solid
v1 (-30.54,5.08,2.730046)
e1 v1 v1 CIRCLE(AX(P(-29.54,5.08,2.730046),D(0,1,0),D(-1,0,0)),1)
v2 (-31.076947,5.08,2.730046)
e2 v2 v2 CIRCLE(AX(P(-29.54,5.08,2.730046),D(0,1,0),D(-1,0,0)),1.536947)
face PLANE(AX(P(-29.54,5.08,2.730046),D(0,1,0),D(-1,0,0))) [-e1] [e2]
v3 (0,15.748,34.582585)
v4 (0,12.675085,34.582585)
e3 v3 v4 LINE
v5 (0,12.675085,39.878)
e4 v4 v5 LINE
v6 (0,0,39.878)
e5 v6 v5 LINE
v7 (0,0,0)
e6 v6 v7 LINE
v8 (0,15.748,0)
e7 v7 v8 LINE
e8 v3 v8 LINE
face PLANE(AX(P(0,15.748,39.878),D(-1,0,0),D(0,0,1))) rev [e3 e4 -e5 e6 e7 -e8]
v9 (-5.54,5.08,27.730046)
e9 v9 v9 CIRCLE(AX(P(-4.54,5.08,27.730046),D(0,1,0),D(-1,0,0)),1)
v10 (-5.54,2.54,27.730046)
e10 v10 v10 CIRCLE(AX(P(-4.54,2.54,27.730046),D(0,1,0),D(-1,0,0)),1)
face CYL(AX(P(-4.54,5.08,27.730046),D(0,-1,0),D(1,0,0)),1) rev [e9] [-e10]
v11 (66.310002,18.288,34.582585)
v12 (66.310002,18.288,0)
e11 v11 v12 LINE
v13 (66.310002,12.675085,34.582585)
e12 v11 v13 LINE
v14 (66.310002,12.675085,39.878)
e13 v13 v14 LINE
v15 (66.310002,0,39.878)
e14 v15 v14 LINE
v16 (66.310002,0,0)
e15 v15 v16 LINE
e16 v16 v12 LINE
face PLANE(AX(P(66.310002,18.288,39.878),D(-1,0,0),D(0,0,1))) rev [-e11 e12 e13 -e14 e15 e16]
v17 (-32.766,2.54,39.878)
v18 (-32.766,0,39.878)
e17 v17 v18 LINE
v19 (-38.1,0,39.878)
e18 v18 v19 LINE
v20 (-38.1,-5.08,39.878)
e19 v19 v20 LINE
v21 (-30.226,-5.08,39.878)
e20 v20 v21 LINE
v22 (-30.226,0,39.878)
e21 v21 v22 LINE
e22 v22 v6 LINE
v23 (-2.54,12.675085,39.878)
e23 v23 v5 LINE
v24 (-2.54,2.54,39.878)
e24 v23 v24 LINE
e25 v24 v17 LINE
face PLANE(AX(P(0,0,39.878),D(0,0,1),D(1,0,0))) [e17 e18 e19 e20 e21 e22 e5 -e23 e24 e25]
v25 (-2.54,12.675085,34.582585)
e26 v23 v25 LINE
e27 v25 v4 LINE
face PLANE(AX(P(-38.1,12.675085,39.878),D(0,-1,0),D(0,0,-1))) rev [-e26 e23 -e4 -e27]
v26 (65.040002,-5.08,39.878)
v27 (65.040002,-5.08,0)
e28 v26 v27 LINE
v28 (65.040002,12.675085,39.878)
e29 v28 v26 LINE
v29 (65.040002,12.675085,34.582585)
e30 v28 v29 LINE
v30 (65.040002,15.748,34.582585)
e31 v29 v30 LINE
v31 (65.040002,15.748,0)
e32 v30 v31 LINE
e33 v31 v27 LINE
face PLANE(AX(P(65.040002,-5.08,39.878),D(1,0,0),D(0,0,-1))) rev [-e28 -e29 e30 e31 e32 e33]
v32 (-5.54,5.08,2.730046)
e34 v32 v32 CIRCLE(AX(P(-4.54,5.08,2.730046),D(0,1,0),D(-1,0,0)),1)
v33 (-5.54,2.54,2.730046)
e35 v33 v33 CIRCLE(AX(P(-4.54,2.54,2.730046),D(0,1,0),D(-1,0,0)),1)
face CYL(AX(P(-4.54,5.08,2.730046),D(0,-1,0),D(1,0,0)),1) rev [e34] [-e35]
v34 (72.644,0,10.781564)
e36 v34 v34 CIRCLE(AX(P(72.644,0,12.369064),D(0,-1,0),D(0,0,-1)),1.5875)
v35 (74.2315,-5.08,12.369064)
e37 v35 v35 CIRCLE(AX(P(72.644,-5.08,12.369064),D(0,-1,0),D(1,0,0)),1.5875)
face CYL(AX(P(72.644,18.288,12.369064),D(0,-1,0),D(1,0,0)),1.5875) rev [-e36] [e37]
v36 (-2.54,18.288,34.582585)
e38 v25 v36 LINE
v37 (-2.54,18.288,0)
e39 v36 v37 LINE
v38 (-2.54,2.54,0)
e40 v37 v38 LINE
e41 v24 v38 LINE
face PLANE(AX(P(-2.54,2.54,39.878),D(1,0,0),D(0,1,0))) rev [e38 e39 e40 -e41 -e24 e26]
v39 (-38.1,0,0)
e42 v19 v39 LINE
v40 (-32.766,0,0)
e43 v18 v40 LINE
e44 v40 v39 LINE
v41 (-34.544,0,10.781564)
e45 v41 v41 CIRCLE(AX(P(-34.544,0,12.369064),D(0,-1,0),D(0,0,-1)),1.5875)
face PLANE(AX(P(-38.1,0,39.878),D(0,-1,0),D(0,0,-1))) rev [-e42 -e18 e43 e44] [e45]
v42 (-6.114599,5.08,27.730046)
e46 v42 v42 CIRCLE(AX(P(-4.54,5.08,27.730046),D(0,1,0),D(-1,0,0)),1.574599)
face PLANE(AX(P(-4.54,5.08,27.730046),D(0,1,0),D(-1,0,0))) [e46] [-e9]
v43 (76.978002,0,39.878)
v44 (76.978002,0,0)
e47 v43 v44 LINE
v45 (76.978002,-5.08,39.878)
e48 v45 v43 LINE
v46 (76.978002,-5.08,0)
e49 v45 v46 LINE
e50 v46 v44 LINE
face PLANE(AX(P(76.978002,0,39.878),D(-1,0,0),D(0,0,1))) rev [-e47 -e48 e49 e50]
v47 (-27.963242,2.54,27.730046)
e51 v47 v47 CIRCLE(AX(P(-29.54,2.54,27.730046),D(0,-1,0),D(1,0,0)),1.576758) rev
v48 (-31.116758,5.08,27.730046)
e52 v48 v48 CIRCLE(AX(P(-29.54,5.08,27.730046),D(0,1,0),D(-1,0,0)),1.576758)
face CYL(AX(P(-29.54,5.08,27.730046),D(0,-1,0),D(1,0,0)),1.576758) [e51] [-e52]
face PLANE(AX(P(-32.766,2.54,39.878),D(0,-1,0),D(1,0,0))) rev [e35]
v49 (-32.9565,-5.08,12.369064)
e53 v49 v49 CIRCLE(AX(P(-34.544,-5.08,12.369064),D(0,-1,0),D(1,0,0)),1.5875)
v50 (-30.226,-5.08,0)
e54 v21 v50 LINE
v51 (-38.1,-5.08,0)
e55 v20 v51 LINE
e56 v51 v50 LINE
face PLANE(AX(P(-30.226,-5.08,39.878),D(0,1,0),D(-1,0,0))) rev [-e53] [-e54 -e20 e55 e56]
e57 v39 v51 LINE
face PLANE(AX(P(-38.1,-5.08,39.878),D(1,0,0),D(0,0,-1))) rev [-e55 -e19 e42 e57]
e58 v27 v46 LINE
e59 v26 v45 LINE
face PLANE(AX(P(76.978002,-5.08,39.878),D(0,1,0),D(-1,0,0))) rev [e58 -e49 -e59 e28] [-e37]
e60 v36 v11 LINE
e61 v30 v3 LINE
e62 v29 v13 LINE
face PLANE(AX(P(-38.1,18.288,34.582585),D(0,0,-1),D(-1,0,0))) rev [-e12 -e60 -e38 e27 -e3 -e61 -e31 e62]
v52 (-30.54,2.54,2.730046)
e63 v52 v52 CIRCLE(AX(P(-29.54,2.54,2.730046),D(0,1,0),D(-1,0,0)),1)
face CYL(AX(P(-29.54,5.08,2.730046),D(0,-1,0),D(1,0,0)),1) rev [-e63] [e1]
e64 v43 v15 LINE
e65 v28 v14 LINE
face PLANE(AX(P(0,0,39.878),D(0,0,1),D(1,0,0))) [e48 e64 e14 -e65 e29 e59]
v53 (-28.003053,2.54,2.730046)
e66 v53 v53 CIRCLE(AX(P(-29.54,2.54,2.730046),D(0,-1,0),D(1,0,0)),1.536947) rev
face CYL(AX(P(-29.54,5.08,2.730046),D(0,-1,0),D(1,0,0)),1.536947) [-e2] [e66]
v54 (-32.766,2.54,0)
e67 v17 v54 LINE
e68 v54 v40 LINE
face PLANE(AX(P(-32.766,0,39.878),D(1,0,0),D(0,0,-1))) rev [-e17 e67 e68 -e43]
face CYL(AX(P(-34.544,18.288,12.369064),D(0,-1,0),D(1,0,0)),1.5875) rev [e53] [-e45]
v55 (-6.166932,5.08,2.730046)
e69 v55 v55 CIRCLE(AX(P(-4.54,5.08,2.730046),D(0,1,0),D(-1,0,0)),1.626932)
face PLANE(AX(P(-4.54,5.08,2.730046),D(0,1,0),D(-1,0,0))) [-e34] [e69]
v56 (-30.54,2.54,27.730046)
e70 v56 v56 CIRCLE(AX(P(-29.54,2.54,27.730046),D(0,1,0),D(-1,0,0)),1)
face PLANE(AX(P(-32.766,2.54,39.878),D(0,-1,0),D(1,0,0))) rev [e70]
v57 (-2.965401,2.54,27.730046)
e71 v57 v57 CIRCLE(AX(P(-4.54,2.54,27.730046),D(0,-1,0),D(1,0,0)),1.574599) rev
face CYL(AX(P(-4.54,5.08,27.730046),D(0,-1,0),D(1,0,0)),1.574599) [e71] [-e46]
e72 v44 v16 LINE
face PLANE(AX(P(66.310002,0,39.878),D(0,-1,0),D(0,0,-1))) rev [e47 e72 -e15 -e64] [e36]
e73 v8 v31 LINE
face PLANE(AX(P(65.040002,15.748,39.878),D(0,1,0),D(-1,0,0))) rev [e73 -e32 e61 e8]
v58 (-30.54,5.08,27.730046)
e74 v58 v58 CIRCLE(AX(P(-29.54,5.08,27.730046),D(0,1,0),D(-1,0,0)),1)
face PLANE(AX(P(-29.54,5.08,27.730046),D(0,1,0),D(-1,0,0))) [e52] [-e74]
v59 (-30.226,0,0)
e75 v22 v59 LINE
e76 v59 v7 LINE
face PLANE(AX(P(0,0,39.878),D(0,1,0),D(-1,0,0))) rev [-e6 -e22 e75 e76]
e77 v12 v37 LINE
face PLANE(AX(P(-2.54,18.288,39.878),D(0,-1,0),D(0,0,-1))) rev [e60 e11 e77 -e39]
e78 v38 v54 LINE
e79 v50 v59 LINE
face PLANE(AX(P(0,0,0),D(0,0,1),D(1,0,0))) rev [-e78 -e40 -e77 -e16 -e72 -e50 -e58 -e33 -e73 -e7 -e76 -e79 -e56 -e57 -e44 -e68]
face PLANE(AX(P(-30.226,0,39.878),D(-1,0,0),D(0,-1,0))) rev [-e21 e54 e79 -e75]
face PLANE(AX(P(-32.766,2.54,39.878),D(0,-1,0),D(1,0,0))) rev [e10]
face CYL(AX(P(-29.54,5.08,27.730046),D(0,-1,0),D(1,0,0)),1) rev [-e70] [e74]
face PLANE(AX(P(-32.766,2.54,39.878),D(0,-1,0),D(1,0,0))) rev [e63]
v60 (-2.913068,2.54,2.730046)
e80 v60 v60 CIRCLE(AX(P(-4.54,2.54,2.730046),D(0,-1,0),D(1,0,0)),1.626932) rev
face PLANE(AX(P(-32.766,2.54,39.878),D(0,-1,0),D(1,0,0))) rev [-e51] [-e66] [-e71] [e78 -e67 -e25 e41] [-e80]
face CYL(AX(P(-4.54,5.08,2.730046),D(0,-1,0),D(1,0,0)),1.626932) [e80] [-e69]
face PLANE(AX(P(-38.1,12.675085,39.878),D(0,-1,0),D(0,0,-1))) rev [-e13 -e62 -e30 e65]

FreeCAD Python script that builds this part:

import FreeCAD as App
import Part
import Sketcher

V = App.Vector
Q = App.Units.Quantity


def add_polygon(sketch, points):
    """Adds a closed chain of lines whose ends are joined by coincident constraints."""
    first, n = sketch.GeometryCount, len(points)
    for a, b in zip(points, points[1:] + points[:1]):
        sketch.addGeometry(Part.LineSegment(App.Vector(*a, 0), App.Vector(*b, 0)), False)
    for i in range(n):
        sketch.addConstraint(Sketcher.Constraint("Coincident", first + i, 2, first + (i + 1) % n, 1))

doc = App.newDocument("Part")
body = doc.addObject("PartDesign::Body", "Body")

# Sketch on XY plane
sketch1 = body.newObject("Sketcher::SketchObject", "Sketch")
sketch1.AttachmentSupport = (doc.getObject("XY_Plane"), [""])
sketch1.MapMode = "FlatFace"
add_polygon(sketch1, [(-30.2, -5.1), (-30.2, 0), (0, 0), (0, 15.7), (65, 15.7), (65, -5.1), (77, -5.1), (77, 0), (66.3, 0), (66.3, 18.3), (-2.5, 18.3), (-2.5, 2.5), (-32.8, 2.5), (-32.8, 0), (-38.1, 0), (-38.1, -5.1)])  # lines 0-15
sketch1.addConstraint([
    Sketcher.Constraint("Vertical", 0),
    Sketcher.Constraint("Horizontal", 1),
    Sketcher.Constraint("Vertical", 2),
    Sketcher.Constraint("Horizontal", 3),
    Sketcher.Constraint("Vertical", 4),
    Sketcher.Constraint("Horizontal", 5),
    Sketcher.Constraint("Vertical", 6),
    Sketcher.Constraint("Horizontal", 7),
    Sketcher.Constraint("Vertical", 8),
    Sketcher.Constraint("Horizontal", 9),
    Sketcher.Constraint("Vertical", 10),
    Sketcher.Constraint("Horizontal", 11),
    Sketcher.Constraint("Vertical", 12),
    Sketcher.Constraint("Horizontal", 13),
    Sketcher.Constraint("Vertical", 14),
    Sketcher.Constraint("Horizontal", 15),
    Sketcher.Constraint("Coincident", 1, 2, -1, 1),
    Sketcher.Constraint("PointOnObject", 6, 2, -1),
    Sketcher.Constraint("PointOnObject", 12, 2, -1),
    Sketcher.Constraint("Horizontal", 5, 2, 14, 2),
    Sketcher.Constraint("Equal", 1, 11),
    Sketcher.Constraint("Equal", 2, 10),
    Sketcher.Constraint("DistanceY", 0, 1, 0, 2, Q("0.2 in")),
    Sketcher.Constraint("DistanceY", 12, 2, 12, 1, Q("0.1 in")),
    Sketcher.Constraint("DistanceX", 1, 1, 1, 2, Q("1.19 in")),
    Sketcher.Constraint("DistanceX", 5, 1, 5, 2, Q("0.47 in")),
    Sketcher.Constraint("DistanceX", 7, 2, 7, 1, Q("0.42 in")),
    Sketcher.Constraint("DistanceX", 13, 2, 13, 1, Q("0.21 in")),
    Sketcher.Constraint("DistanceX", 15, 1, 15, 2, Q("0.31 in")),
    Sketcher.Constraint("DistanceY", 2, 1, 2, 2, Q("0.62 in")),
    Sketcher.Constraint("DistanceX", 3, 1, 3, 2, Q("65.040002 mm")),
])
pad1 = body.newObject("PartDesign::Pad", "Pad")
pad1.Profile = sketch1
pad1.Length = Q("1.57 in")

# Sketch on XZ plane
sketch2 = body.newObject("Sketcher::SketchObject", "Sketch001")
sketch2.AttachmentSupport = (doc.getObject("XZ_Plane"), [""])
sketch2.MapMode = "FlatFace"
sketch2.AttachmentOffset = App.Placement(V(0, 0, 0.2 * 25.4), App.Rotation())
sketch2.addGeometry([
    Part.Circle(V(-34.5, 12.4, 0), V(0, 0, 1), 1.6),
    Part.Circle(V(72.6, 12.4, 0), V(0, 0, 1), 1.6),
], False)
sketch2.addConstraint([
    Sketcher.Constraint("Equal", 0, 1),
    Sketcher.Constraint("Horizontal", 0, 3, 1, 3),
    Sketcher.Constraint("Diameter", 0, Q("0.125 in")),
    Sketcher.Constraint("DistanceX", 0, 3, -1, 1, Q("1.36 in")),
    Sketcher.Constraint("DistanceX", -1, 1, 1, 3, Q("2.86 in")),
    Sketcher.Constraint("DistanceY", -1, 1, 0, 3, Q("12.369064 mm")),
])
pocket1 = body.newObject("PartDesign::Pocket", "Pocket")
pocket1.Profile = sketch2
pocket1.Type = "ThroughAll"

# Sketch on YZ plane
sketch3 = body.newObject("Sketcher::SketchObject", "Sketch002")
sketch3.AttachmentSupport = (doc.getObject("YZ_Plane"), [""])
sketch3.MapMode = "FlatFace"
sketch3.AttachmentOffset = App.Placement(V(0, 0, 76.978002), App.Rotation())
add_polygon(sketch3, [(18, 40), (13, 40), (13, 35), (18, 35)])  # lines 0-3
sketch3.addConstraint([
    Sketcher.Constraint("Horizontal", 0),
    Sketcher.Constraint("Vertical", 1),
    Sketcher.Constraint("Horizontal", 2),
    Sketcher.Constraint("Vertical", 3),
    Sketcher.Constraint("DistanceY", -1, 1, 0, 2, Q("1.57 in")),
    Sketcher.Constraint("DistanceX", -1, 1, 2, 2, Q("0.72 in")),
    Sketcher.Constraint("DistanceX", 0, 2, 0, 1, Q("5.612915 mm")),
    Sketcher.Constraint("DistanceY", 1, 2, 1, 1, Q("5.295415 mm")),
])
pocket2 = body.newObject("PartDesign::Pocket", "Pocket001")
pocket2.Profile = sketch3
pocket2.Type = "ThroughAll"

# Sketch on XZ plane
sketch4 = body.newObject("Sketcher::SketchObject", "Sketch003")
sketch4.AttachmentSupport = (doc.getObject("XZ_Plane"), [""])
sketch4.MapMode = "FlatFace"
sketch4.AttachmentOffset = App.Placement(V(0, 0, -0.1 * 25.4), App.Rotation())
sketch4.addGeometry([
    Part.Circle(V(-29.5, 27.7, 0), V(0, 0, 1), 1.6),  # 0
    Part.Circle(V(-29.5, 27.7, 0), V(0, 0, 1), 1),  # 1
    Part.Circle(V(-29.5, 2.7, 0), V(0, 0, 1), 1.5),  # 2
    Part.Circle(V(-29.5, 2.7, 0), V(0, 0, 1), 1),  # 3
    Part.Circle(V(-4.5, 27.7, 0), V(0, 0, 1), 1.6),  # 4
    Part.Circle(V(-4.5, 27.7, 0), V(0, 0, 1), 1),  # 5
    Part.Circle(V(-4.5, 2.7, 0), V(0, 0, 1), 1.6),  # 6
    Part.Circle(V(-4.5, 2.7, 0), V(0, 0, 1), 1),  # 7
], False)
sketch4.addConstraint([
    Sketcher.Constraint("Coincident", 1, 3, 0, 3),
    Sketcher.Constraint("Coincident", 3, 3, 2, 3),
    Sketcher.Constraint("Coincident", 5, 3, 4, 3),
    Sketcher.Constraint("Coincident", 7, 3, 6, 3),
    Sketcher.Constraint("Equal", 1, 3),
    Sketcher.Constraint("Equal", 3, 5),
    Sketcher.Constraint("Equal", 5, 7),
    Sketcher.Constraint("Horizontal", 1, 3, 4, 3),
    Sketcher.Constraint("Horizontal", 3, 3, 6, 3),
    Sketcher.Constraint("Vertical", 1, 3, 2, 3),
    Sketcher.Constraint("Vertical", 5, 3, 6, 3),
    Sketcher.Constraint("Diameter", 1, Q("2 mm")),
    Sketcher.Constraint("Diameter", 0, Q("3.153516 mm")),
    Sketcher.Constraint("Diameter", 2, Q("3.073893 mm")),
    Sketcher.Constraint("Diameter", 4, Q("3.149198 mm")),
    Sketcher.Constraint("Diameter", 6, Q("3.253864 mm")),
    Sketcher.Constraint("DistanceX", 0, 3, -1, 1, Q("29.54 mm")),
    Sketcher.Constraint("DistanceX", 4, 3, -1, 1, Q("4.54 mm")),
    Sketcher.Constraint("DistanceY", 2, 3, 0, 3, Q("25 mm")),
    Sketcher.Constraint("DistanceY", -1, 1, 0, 3, Q("27.730046 mm")),
])
pad2 = body.newObject("PartDesign::Pad", "Pad001")
pad2.Profile = sketch4
pad2.Length = Q("0.1 in")
pad2.Reversed = True

doc.recompute()
